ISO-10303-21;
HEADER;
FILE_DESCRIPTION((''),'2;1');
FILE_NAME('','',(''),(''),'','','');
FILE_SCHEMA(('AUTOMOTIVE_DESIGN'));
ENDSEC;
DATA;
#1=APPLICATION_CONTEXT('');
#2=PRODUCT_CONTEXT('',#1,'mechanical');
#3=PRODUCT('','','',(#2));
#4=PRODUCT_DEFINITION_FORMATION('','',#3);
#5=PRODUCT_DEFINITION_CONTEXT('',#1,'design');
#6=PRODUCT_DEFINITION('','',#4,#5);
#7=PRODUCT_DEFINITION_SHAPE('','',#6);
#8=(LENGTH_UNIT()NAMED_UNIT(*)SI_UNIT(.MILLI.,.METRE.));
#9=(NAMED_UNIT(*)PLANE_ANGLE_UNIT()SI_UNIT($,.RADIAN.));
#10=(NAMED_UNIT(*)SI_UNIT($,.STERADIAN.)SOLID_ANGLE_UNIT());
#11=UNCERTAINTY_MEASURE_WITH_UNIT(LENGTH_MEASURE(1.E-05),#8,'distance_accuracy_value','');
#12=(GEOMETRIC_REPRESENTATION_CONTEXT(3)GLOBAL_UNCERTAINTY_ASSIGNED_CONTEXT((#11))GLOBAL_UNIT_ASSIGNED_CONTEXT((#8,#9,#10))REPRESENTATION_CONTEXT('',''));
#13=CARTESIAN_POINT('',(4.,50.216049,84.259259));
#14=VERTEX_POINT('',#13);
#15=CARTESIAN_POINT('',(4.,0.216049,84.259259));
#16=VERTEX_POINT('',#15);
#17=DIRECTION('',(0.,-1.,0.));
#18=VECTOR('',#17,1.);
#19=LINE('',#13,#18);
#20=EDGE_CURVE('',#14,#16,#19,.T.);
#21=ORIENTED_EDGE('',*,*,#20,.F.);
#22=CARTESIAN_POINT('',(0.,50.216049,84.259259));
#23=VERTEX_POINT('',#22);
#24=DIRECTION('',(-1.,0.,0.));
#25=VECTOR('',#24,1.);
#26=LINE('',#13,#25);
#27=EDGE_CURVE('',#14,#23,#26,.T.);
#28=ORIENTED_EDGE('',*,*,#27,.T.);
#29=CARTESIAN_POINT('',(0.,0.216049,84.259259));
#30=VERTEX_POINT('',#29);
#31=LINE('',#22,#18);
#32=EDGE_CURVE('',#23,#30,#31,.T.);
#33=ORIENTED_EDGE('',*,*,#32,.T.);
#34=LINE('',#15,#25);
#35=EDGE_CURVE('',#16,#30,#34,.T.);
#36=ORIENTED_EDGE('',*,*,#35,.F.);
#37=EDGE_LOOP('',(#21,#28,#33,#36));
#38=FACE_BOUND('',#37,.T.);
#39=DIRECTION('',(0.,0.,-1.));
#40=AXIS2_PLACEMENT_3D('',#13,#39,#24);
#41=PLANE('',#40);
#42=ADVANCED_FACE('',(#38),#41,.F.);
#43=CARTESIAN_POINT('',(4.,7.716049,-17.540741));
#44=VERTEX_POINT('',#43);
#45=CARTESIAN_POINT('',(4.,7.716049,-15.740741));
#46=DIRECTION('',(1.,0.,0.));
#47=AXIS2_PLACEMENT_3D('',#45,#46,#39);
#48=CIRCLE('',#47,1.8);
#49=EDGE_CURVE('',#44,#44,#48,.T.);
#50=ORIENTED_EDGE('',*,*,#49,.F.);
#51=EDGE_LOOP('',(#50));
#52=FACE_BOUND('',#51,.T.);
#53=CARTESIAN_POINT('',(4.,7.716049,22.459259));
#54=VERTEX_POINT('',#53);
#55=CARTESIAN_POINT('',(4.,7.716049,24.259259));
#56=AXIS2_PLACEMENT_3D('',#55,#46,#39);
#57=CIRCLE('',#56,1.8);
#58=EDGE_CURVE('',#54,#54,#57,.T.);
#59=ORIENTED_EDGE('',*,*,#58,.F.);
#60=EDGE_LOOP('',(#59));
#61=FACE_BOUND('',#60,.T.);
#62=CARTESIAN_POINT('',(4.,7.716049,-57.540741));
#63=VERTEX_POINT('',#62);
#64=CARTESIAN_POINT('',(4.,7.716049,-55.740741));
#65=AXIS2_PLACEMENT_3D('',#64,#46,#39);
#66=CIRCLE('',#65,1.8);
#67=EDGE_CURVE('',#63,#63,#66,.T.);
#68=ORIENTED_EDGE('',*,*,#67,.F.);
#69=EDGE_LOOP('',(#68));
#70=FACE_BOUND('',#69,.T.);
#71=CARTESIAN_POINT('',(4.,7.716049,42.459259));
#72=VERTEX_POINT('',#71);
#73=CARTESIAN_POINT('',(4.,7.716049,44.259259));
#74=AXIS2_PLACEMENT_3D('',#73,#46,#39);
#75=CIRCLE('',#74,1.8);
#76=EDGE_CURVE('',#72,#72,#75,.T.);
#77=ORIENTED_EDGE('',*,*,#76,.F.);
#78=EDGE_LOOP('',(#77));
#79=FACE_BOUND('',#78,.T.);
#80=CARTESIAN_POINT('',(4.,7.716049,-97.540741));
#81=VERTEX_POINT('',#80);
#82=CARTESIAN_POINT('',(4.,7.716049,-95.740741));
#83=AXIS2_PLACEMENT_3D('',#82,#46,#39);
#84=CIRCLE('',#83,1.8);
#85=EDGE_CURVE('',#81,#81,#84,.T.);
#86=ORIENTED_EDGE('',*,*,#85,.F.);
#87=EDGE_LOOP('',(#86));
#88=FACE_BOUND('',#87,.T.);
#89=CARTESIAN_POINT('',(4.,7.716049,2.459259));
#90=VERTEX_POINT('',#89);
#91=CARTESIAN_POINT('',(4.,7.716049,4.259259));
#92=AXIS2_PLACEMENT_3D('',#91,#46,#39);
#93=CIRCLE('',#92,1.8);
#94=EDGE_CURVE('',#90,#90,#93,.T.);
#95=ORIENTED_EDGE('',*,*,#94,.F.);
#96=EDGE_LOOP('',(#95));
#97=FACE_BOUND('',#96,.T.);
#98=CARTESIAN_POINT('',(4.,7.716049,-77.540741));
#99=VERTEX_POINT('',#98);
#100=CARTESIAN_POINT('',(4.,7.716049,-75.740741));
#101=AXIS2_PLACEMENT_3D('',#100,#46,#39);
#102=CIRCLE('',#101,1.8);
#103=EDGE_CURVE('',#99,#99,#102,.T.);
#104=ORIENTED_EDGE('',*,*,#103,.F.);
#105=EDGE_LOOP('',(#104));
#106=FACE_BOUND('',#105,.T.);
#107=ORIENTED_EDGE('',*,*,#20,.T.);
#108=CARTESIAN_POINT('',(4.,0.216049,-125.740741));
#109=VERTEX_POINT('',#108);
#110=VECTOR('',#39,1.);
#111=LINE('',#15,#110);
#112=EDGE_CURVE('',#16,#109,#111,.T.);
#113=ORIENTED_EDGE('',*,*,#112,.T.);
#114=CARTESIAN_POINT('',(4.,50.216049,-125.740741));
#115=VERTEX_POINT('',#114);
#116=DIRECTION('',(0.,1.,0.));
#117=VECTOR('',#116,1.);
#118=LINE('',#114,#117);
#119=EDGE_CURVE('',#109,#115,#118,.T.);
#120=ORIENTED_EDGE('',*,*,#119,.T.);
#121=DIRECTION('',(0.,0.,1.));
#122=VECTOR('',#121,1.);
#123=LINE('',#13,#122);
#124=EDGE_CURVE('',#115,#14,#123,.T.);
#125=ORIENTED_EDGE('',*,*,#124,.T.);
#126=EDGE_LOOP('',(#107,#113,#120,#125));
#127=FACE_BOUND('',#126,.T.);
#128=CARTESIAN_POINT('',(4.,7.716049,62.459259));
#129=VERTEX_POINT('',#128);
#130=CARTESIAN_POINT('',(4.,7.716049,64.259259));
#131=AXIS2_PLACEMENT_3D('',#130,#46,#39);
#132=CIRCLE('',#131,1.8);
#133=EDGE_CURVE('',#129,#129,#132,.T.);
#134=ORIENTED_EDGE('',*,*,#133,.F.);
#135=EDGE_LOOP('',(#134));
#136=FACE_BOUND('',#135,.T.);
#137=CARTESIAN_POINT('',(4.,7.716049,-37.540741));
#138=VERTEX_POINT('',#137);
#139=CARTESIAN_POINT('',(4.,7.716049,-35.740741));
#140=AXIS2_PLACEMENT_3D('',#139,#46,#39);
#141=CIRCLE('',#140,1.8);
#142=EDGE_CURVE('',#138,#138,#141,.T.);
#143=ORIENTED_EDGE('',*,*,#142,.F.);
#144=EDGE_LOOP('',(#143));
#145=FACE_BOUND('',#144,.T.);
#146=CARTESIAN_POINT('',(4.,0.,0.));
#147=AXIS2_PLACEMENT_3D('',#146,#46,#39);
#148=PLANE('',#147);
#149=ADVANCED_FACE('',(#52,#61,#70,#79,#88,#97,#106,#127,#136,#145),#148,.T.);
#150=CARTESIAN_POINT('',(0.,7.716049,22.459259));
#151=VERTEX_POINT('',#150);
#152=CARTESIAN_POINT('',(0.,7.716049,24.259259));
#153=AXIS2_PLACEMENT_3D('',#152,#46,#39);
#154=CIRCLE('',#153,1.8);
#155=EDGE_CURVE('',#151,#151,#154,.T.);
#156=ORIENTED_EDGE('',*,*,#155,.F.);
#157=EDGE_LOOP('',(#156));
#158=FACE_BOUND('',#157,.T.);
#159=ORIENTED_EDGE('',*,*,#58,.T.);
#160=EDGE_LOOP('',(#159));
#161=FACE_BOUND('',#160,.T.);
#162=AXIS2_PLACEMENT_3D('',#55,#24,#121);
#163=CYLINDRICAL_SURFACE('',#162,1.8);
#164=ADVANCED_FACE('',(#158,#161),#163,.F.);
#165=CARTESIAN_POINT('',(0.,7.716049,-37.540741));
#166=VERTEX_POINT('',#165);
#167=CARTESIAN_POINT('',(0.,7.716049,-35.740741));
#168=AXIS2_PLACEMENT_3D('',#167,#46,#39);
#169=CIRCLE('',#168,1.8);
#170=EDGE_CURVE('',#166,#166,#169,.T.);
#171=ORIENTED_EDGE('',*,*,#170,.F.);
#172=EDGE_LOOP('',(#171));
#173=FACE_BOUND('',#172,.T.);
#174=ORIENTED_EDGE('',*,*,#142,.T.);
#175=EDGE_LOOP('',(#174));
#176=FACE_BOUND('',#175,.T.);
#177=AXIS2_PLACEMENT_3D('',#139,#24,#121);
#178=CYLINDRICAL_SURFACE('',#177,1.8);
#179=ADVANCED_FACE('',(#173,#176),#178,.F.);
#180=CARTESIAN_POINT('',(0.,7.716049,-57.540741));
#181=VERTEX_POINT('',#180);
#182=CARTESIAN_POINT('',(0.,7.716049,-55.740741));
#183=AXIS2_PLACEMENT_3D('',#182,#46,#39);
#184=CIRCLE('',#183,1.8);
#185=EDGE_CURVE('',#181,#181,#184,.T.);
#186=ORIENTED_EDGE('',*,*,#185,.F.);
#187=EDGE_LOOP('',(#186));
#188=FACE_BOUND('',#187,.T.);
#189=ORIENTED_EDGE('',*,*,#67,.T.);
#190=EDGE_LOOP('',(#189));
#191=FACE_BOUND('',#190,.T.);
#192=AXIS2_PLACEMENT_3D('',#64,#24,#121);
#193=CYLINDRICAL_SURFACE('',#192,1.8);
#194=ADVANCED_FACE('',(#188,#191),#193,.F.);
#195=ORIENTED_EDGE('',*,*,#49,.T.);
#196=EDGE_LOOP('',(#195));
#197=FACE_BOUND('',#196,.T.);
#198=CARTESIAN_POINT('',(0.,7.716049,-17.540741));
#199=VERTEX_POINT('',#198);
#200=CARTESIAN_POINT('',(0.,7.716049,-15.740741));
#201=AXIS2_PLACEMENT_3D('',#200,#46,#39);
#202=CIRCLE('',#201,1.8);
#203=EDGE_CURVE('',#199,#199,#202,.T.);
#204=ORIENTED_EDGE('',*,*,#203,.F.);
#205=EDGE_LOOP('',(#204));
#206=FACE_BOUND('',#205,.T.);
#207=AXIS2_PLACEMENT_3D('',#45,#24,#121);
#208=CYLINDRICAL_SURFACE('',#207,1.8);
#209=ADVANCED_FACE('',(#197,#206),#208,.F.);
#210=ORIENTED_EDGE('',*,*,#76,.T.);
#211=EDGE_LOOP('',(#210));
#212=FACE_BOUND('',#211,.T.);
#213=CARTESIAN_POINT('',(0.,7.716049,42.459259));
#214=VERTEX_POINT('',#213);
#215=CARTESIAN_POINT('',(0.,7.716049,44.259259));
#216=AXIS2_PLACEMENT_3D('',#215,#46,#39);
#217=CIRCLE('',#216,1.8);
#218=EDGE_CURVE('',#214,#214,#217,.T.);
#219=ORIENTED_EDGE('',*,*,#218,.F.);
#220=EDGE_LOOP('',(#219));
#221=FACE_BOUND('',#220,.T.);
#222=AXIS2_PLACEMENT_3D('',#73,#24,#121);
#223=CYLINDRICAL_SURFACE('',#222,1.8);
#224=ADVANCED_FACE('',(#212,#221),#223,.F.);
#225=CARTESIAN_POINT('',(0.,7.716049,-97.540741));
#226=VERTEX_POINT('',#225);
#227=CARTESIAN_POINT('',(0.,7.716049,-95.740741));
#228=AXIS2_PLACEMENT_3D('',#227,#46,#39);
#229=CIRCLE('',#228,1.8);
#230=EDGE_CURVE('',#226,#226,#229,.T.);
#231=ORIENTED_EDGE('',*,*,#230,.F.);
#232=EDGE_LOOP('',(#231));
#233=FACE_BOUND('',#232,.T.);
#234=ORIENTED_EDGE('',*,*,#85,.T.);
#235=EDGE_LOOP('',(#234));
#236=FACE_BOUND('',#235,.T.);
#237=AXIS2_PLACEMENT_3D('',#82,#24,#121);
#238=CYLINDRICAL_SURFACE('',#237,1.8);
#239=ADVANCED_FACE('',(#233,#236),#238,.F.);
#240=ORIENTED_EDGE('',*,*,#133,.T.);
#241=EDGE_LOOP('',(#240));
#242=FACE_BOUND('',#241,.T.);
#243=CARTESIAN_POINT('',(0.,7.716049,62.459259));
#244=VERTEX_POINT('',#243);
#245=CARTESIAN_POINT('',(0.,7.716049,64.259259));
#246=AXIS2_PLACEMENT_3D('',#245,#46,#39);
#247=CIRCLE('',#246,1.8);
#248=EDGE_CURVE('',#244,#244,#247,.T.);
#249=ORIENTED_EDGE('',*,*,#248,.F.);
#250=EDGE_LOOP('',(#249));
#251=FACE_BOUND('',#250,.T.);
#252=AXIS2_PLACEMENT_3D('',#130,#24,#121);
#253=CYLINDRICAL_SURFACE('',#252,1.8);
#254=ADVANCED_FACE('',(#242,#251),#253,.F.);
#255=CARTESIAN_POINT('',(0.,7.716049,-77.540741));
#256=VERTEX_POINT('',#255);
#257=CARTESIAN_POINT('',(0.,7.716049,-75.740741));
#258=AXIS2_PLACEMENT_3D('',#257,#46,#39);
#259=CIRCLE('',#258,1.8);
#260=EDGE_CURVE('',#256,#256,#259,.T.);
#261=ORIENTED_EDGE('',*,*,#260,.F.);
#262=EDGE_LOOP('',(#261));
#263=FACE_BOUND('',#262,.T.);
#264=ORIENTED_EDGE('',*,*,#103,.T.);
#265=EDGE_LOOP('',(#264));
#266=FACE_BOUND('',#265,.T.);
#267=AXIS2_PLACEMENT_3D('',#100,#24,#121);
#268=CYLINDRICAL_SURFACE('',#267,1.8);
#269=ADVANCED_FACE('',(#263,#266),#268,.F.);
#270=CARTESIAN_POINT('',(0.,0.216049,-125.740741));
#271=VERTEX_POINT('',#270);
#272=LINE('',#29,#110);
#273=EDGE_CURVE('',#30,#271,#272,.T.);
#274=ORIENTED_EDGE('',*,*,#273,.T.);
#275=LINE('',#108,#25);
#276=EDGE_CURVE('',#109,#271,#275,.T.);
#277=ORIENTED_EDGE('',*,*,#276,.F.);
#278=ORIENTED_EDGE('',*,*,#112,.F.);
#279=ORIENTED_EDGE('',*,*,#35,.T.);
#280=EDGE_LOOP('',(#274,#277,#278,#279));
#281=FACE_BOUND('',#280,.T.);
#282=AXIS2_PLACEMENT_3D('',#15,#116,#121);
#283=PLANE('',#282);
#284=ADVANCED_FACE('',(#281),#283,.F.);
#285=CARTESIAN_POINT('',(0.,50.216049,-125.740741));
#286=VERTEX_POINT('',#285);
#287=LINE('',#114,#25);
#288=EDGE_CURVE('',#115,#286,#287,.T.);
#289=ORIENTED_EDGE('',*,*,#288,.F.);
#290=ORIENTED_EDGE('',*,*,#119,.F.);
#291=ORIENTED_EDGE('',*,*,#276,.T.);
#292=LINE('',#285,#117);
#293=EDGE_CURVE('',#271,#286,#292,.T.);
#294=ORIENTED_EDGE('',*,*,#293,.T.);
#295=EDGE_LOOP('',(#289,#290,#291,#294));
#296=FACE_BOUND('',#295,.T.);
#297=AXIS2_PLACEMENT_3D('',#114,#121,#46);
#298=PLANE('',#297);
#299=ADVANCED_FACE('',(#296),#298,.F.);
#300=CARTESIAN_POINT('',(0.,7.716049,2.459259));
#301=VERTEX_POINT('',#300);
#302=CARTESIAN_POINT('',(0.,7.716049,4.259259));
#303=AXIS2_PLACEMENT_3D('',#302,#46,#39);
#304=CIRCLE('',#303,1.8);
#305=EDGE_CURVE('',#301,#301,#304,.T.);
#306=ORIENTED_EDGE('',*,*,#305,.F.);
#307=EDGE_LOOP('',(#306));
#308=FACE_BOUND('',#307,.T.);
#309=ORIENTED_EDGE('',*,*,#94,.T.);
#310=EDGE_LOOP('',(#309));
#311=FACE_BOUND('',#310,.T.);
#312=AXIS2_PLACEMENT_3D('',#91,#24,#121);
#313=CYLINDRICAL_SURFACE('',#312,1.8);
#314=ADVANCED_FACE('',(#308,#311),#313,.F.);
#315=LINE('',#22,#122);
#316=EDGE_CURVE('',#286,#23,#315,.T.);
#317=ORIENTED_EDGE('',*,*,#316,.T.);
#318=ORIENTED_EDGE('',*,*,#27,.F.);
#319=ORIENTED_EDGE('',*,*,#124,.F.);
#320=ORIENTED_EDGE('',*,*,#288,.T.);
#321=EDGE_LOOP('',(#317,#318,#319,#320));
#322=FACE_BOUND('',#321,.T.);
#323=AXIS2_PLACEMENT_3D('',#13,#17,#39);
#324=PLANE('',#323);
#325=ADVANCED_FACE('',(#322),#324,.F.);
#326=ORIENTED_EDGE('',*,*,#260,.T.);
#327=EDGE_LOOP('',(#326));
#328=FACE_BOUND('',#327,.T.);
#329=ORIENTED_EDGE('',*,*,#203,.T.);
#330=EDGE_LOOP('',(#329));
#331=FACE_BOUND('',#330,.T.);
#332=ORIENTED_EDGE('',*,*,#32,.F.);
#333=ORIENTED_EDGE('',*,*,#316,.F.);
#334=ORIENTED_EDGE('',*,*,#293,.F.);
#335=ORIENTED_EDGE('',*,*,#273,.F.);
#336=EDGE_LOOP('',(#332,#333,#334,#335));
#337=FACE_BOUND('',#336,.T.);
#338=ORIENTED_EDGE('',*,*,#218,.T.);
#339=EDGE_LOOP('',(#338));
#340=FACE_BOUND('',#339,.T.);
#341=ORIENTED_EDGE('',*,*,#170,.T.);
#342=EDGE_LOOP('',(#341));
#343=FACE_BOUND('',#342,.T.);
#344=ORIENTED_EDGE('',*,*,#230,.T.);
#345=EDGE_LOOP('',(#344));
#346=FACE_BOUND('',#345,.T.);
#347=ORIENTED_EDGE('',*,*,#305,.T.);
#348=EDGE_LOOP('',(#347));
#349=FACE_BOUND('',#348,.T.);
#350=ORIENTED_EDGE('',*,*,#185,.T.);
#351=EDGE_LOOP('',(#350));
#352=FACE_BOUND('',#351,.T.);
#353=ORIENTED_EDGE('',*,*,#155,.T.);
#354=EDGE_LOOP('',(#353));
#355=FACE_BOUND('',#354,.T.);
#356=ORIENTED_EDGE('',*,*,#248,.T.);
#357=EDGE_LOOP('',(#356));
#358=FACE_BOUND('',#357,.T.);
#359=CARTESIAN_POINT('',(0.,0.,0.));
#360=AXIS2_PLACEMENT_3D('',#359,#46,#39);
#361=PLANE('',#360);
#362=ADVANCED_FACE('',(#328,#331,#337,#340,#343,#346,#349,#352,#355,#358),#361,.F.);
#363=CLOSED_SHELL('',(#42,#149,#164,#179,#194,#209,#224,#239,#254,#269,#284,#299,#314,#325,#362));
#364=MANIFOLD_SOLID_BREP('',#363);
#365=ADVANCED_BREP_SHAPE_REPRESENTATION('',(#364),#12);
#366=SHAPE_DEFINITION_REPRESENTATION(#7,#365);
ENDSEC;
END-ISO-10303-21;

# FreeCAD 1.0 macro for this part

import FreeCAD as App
import Part
import Sketcher
from FreeCAD import Vector

doc = App.newDocument("Part")
body = doc.addObject("PartDesign::Body", "Body")

# Sketch on YZ plane
sketch1 = body.newObject("Sketcher::SketchObject", "Sketch")
sketch1.AttachmentSupport = (doc.getObject("YZ_Plane"), [""])
sketch1.MapMode = "FlatFace"
sketch1.addGeometry(Part.LineSegment(Vector(50.2, 84.3, 0), Vector(0.2, 84.3, 0)), False)
sketch1.addGeometry(Part.LineSegment(Vector(0.2, 84.3, 0), Vector(0.2, -125.7, 0)), False)
sketch1.addGeometry(Part.LineSegment(Vector(0.2, -125.7, 0), Vector(50.2, -125.7, 0)), False)
sketch1.addGeometry(Part.LineSegment(Vector(50.2, -125.7, 0), Vector(50.2, 84.3, 0)), False)
sketch1.addGeometry(Part.Circle(Vector(7.7, 64.3, 0), Vector(0, 0, 1), 1.8), False)
sketch1.addGeometry(Part.Circle(Vector(7.7, 44.3, 0), Vector(0, 0, 1), 1.8), False)
sketch1.addGeometry(Part.Circle(Vector(7.7, 24.3, 0), Vector(0, 0, 1), 1.8), False)
sketch1.addGeometry(Part.Circle(Vector(7.7, 4.3, 0), Vector(0, 0, 1), 1.8), False)
sketch1.addGeometry(Part.Circle(Vector(7.7, -15.7, 0), Vector(0, 0, 1), 1.8), False)
sketch1.addGeometry(Part.Circle(Vector(7.7, -35.7, 0), Vector(0, 0, 1), 1.8), False)
sketch1.addGeometry(Part.Circle(Vector(7.7, -55.7, 0), Vector(0, 0, 1), 1.8), False)
sketch1.addGeometry(Part.Circle(Vector(7.7, -75.7, 0), Vector(0, 0, 1), 1.8), False)
sketch1.addGeometry(Part.Circle(Vector(7.7, -95.7, 0), Vector(0, 0, 1), 1.8), False)
sketch1.addConstraint(Sketcher.Constraint("Coincident", 0, 2, 1, 1))
sketch1.addConstraint(Sketcher.Constraint("Coincident", 1, 2, 2, 1))
sketch1.addConstraint(Sketcher.Constraint("Coincident", 2, 2, 3, 1))
sketch1.addConstraint(Sketcher.Constraint("Coincident", 3, 2, 0, 1))
sketch1.addConstraint(Sketcher.Constraint("Horizontal", 0))
sketch1.addConstraint(Sketcher.Constraint("Vertical", 1))
sketch1.addConstraint(Sketcher.Constraint("Horizontal", 2))
sketch1.addConstraint(Sketcher.Constraint("Vertical", 3))
sketch1.addConstraint(Sketcher.Constraint("Equal", 4, 5))
sketch1.addConstraint(Sketcher.Constraint("Equal", 5, 6))
sketch1.addConstraint(Sketcher.Constraint("Equal", 6, 7))
sketch1.addConstraint(Sketcher.Constraint("Equal", 7, 8))
sketch1.addConstraint(Sketcher.Constraint("Equal", 8, 9))
sketch1.addConstraint(Sketcher.Constraint("Equal", 9, 10))
sketch1.addConstraint(Sketcher.Constraint("Equal", 10, 11))
sketch1.addConstraint(Sketcher.Constraint("Equal", 11, 12))
sketch1.addConstraint(Sketcher.Constraint("Vertical", 4, 3, 5, 3))
sketch1.addConstraint(Sketcher.Constraint("Vertical", 5, 3, 6, 3))
sketch1.addConstraint(Sketcher.Constraint("Vertical", 6, 3, 7, 3))
sketch1.addConstraint(Sketcher.Constraint("Vertical", 7, 3, 8, 3))
sketch1.addConstraint(Sketcher.Constraint("Vertical", 8, 3, 9, 3))
sketch1.addConstraint(Sketcher.Constraint("Vertical", 9, 3, 10, 3))
sketch1.addConstraint(Sketcher.Constraint("Vertical", 10, 3, 11, 3))
sketch1.addConstraint(Sketcher.Constraint("Vertical", 11, 3, 12, 3))
sketch1.addConstraint(Sketcher.Constraint("Diameter", 4, 3.6))
sketch1.addConstraint(Sketcher.Constraint("DistanceX", 0, 2, 0, 1, 50.0))
sketch1.addConstraint(Sketcher.Constraint("DistanceY", 1, 2, 1, 1, 210.0))
sketch1.addConstraint(Sketcher.Constraint("DistanceY", 5, 3, 4, 3, 20.0))
sketch1.addConstraint(Sketcher.Constraint("DistanceY", 6, 3, 5, 3, 20.0))
sketch1.addConstraint(Sketcher.Constraint("DistanceY", 7, 3, 6, 3, 20.0))
sketch1.addConstraint(Sketcher.Constraint("DistanceY", 8, 3, 7, 3, 20.0))
sketch1.addConstraint(Sketcher.Constraint("DistanceY", 9, 3, 8, 3, 20.0))
sketch1.addConstraint(Sketcher.Constraint("DistanceY", 10, 3, 9, 3, 20.0))
sketch1.addConstraint(Sketcher.Constraint("DistanceY", 11, 3, 10, 3, 20.0))
sketch1.addConstraint(Sketcher.Constraint("DistanceY", 12, 3, 11, 3, 20.0))
sketch1.addConstraint(Sketcher.Constraint("DistanceY", 4, 3, 0, 2, 20.0))
sketch1.addConstraint(Sketcher.Constraint("DistanceX", 0, 2, 4, 3, 7.5))
sketch1.addConstraint(Sketcher.Constraint("DistanceX", -1, 1, 4, 3, 7.716049))
sketch1.addConstraint(Sketcher.Constraint("DistanceY", -1, 1, 4, 3, 64.259259))
pad1 = body.newObject("PartDesign::Pad", "Pad")
pad1.Profile = sketch1
pad1.Length = 4

doc.recompute()
